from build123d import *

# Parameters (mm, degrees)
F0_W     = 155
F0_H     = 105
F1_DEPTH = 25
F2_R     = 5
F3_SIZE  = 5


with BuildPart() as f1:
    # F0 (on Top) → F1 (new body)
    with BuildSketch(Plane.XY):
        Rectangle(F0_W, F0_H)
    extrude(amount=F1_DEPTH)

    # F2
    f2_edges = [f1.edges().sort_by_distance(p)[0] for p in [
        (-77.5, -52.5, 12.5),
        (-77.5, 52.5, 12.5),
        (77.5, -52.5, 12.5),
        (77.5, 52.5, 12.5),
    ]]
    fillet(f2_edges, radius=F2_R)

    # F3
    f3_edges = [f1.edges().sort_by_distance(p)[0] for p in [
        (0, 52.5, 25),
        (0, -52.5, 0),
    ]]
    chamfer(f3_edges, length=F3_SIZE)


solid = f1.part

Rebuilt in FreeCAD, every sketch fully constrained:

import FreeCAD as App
import Part
import Sketcher


def edges_at(feature, points):
    """Names of the edges that pass closest to the given points."""
    edges = feature.Shape.Edges
    near = lambda p: min(range(len(edges)), key=lambda i: edges[i].distToShape(Part.Vertex(*p))[0])
    return sorted({f"Edge{near(p) + 1}" for p in points})


def add_polygon(sketch, points):
    """Adds a closed chain of lines whose ends are joined by coincident constraints."""
    first, n = sketch.GeometryCount, len(points)
    for a, b in zip(points, points[1:] + points[:1]):
        sketch.addGeometry(Part.LineSegment(App.Vector(*a, 0), App.Vector(*b, 0)), False)
    for i in range(n):
        sketch.addConstraint(Sketcher.Constraint("Coincident", first + i, 2, first + (i + 1) % n, 1))

doc = App.newDocument("Part")
params = doc.addObject("Spreadsheet::Sheet", "Params")
for row, (alias, value) in enumerate([
    ("sketch1_width", "155 mm"),
    ("sketch1_height", "105 mm"),
    ("pad1_length", "25 mm"),
    ("fillet_radius", "5 mm"),
    ("chamfer_size", "5 mm"),
], start=1):
    params.set(f"A{row}", alias)
    params.set(f"B{row}", "=" + value)
    params.setAlias(f"B{row}", alias)

body = doc.addObject("PartDesign::Body", "Body")

# Sketch on XY plane
sketch1 = doc.addObject("Sketcher::SketchObject", "Sketch")
body.addObject(sketch1)
sketch1.AttachmentSupport = (doc.XY_Plane, [""])
sketch1.MapMode = "FlatFace"
add_polygon(sketch1, [(-78, 52), (-78, -52), (78, -52), (78, 52)])  # lines 0-3
sketch1.addConstraint([
    Sketcher.Constraint("Vertical", 0),
    Sketcher.Constraint("Horizontal", 1),
    Sketcher.Constraint("Vertical", 2),
    Sketcher.Constraint("Horizontal", 3),
    Sketcher.Constraint("Symmetric", 0, 2, 2, 2, -1, 1),
    Sketcher.Constraint("DistanceX", 1, 1, 1, 2, 155.0),
    Sketcher.Constraint("DistanceY", 0, 2, 0, 1, 105.0),
])
sketch1.setExpression("Constraints[9]", "Params.sketch1_width")
sketch1.setExpression("Constraints[10]", "Params.sketch1_height")
pad1 = doc.addObject("PartDesign::Pad", "Pad")
body.addObject(pad1)
pad1.Profile = sketch1
pad1.setExpression("Length", "Params.pad1_length")
doc.recompute()

fillet = doc.addObject("PartDesign::Fillet", "Fillet")
body.addObject(fillet)
fillet.Base = (pad1, edges_at(pad1, [
    (-77.5, -52.5, 12.5),
    (-77.5, 52.5, 12.5),
    (77.5, -52.5, 12.5),
    (77.5, 52.5, 12.5),
]))
fillet.setExpression("Radius", "Params.fillet_radius")
doc.recompute()

chamfer = doc.addObject("PartDesign::Chamfer", "Chamfer")
body.addObject(chamfer)
chamfer.Base = (fillet, edges_at(fillet, [(0, 52.5, 25), (0, -52.5, 0)]))
chamfer.setExpression("Size", "Params.chamfer_size")

doc.recompute()
